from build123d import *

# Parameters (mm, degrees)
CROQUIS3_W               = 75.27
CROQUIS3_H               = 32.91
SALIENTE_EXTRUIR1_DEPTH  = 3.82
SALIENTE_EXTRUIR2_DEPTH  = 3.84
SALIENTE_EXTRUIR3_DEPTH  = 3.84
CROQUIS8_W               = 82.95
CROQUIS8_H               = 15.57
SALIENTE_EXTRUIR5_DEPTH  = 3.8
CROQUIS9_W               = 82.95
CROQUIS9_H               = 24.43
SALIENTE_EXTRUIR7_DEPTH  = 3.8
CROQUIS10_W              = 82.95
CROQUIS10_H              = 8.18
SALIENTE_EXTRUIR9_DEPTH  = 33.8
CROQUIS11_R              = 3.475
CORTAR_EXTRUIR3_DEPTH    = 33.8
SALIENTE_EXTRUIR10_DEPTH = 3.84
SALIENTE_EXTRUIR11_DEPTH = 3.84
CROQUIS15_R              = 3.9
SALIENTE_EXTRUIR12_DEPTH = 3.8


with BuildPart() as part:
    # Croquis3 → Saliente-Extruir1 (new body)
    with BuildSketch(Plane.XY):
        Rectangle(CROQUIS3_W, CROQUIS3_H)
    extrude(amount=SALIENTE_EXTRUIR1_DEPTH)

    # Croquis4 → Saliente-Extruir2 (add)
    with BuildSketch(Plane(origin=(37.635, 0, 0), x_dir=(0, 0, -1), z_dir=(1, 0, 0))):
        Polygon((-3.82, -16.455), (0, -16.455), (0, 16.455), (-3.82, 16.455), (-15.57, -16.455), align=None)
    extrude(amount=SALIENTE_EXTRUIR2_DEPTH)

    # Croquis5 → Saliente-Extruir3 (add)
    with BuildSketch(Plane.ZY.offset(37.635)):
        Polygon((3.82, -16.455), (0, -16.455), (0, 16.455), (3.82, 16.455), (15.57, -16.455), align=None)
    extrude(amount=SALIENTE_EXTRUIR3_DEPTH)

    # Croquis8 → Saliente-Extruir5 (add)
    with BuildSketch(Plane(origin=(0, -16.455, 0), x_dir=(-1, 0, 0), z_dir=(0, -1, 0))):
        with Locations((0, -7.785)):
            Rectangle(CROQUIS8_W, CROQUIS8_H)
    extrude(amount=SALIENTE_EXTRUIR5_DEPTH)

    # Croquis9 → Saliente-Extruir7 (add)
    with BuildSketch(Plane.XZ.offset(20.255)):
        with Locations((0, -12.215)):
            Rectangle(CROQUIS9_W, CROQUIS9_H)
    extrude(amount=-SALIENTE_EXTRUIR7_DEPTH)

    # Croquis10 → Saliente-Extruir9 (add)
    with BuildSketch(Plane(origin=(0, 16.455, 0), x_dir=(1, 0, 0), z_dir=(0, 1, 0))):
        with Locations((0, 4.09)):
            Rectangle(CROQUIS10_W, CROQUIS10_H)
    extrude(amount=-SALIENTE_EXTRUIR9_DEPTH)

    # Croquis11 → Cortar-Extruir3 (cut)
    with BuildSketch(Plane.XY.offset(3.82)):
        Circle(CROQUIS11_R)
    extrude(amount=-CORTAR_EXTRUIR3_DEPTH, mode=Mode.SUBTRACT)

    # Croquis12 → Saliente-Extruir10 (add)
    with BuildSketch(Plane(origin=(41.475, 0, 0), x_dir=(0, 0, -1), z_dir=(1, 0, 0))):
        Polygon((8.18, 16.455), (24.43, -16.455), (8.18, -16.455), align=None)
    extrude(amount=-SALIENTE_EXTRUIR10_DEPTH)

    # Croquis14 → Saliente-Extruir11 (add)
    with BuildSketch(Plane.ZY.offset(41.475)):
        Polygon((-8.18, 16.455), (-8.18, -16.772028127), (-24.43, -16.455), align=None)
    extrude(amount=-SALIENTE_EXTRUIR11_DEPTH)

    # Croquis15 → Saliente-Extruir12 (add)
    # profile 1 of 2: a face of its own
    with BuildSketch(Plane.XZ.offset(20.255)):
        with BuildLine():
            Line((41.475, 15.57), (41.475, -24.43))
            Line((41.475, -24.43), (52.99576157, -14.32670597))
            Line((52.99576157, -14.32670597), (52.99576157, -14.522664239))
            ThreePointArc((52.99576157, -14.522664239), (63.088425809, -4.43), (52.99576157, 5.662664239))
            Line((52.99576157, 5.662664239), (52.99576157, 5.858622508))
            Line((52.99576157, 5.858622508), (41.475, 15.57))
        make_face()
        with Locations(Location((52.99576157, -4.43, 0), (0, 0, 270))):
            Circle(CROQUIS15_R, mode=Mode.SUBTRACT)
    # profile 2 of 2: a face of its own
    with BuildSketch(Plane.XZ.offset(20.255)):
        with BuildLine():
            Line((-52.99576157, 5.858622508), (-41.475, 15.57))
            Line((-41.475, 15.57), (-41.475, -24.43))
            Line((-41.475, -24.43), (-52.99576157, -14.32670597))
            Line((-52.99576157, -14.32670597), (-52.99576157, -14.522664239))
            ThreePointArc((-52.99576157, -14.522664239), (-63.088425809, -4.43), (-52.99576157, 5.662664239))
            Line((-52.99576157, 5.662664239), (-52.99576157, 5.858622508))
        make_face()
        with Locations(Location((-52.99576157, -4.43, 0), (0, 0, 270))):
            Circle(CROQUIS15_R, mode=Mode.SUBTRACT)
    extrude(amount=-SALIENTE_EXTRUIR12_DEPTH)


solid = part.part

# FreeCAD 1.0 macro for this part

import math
import FreeCAD as App
import Part
import Sketcher


def add_polygon(sketch, points):
    """Adds a closed chain of lines whose ends are joined by coincident constraints."""
    first, n = sketch.GeometryCount, len(points)
    for a, b in zip(points, points[1:] + points[:1]):
        sketch.addGeometry(Part.LineSegment(App.Vector(*a, 0), App.Vector(*b, 0)), False)
    for i in range(n):
        sketch.addConstraint(Sketcher.Constraint("Coincident", first + i, 2, first + (i + 1) % n, 1))

doc = App.newDocument("Part")
params = doc.addObject("Spreadsheet::Sheet", "Params")
for row, (alias, value) in enumerate([
    ("sketch1_width", "75.27 mm"),
    ("sketch1_height", "32.91 mm"),
    ("pad1_length", "3.82 mm"),
    ("sketch2_width", "32.91 mm"),
    ("sketch2_height", "3.82 mm"),
    ("sketch2_height2", "15.57 mm"),
    ("pad2_length", "3.84 mm"),
    ("sketch3_width", "32.91 mm"),
    ("sketch3_height", "15.57 mm"),
    ("sketch3_height2", "3.82 mm"),
    ("pad3_length", "3.84 mm"),
    ("sketch4_width", "82.95 mm"),
    ("sketch4_height", "15.57 mm"),
    ("pad4_length", "3.8 mm"),
    ("sketch5_width", "82.95 mm"),
    ("sketch5_height", "24.43 mm"),
    ("pad5_length", "3.8 mm"),
    ("sketch6_width", "82.95 mm"),
    ("sketch6_height", "8.18 mm"),
    ("pad6_length", "33.8 mm"),
    ("sketch7_diameter", "6.95 mm"),
    ("pocket1_length", "33.8 mm"),
    ("sketch8_width", "32.91 mm"),
    ("sketch8_height", "16.25 mm"),
    ("pad7_length", "3.84 mm"),
    ("pad8_length", "3.84 mm"),
    ("sketch10_diameter", "7.8 mm"),
    ("sketch10_height", "40 mm"),
    ("pad9_length", "3.8 mm"),
], start=1):
    params.set(f"A{row}", alias)
    params.set(f"B{row}", "=" + value)
    params.setAlias(f"B{row}", alias)

body = doc.addObject("PartDesign::Body", "Body")

# Sketch on XY plane
sketch1 = body.newObject("Sketcher::SketchObject", "Sketch")
sketch1.AttachmentSupport = (doc.getObject("XY_Plane"), [""])
sketch1.MapMode = "FlatFace"
add_polygon(sketch1, [(-38, 16), (-38, -16), (38, -16), (38, 16)])  # lines 0-3
sketch1.addConstraint([
    Sketcher.Constraint("Vertical", 0),
    Sketcher.Constraint("Horizontal", 1),
    Sketcher.Constraint("Vertical", 2),
    Sketcher.Constraint("Horizontal", 3),
    Sketcher.Constraint("Symmetric", 0, 2, 2, 2, -1, 1),
    Sketcher.Constraint("DistanceX", 1, 1, 1, 2, 75.27),
    Sketcher.Constraint("DistanceY", 0, 2, 0, 1, 32.91),
])
sketch1.setExpression("Constraints[9]", "Params.sketch1_width")
sketch1.setExpression("Constraints[10]", "Params.sketch1_height")
pad1 = body.newObject("PartDesign::Pad", "Pad")
pad1.Profile = sketch1
pad1.setExpression("Length", "Params.pad1_length")

# Sketch on YZ plane
sketch2 = body.newObject("Sketcher::SketchObject", "Sketch001")
sketch2.AttachmentSupport = (doc.getObject("YZ_Plane"), [""])
sketch2.MapMode = "FlatFace"
sketch2.AttachmentOffset = App.Placement(App.Vector(0, 0, 37.635), App.Rotation())
add_polygon(sketch2, [(-16.5, 0), (16.5, 0), (16.5, 3.8), (-16.5, 15.6)])  # lines 0-3
sketch2.addConstraint([
    Sketcher.Constraint("Horizontal", 0),
    Sketcher.Constraint("Vertical", 1),
    Sketcher.Constraint("Vertical", 3),
    Sketcher.Constraint("Symmetric", 0, 2, 3, 2, -1, 1),
    Sketcher.Constraint("DistanceX", 0, 1, 0, 2, 32.91),
    Sketcher.Constraint("DistanceY", 1, 1, 1, 2, 3.82),
    Sketcher.Constraint("DistanceY", 3, 2, 3, 1, 15.57),
])
sketch2.setExpression("Constraints[8]", "Params.sketch2_width")
sketch2.setExpression("Constraints[9]", "Params.sketch2_height")
sketch2.setExpression("Constraints[10]", "Params.sketch2_height2")
pad2 = body.newObject("PartDesign::Pad", "Pad001")
pad2.Profile = sketch2
pad2.setExpression("Length", "Params.pad2_length")

# Sketch on YZ plane
sketch3 = body.newObject("Sketcher::SketchObject", "Sketch002")
sketch3.AttachmentSupport = (doc.getObject("YZ_Plane"), [""])
sketch3.MapMode = "FlatFace"
sketch3.AttachmentOffset = App.Placement(App.Vector(0, 0, -37.635), App.Rotation())
add_polygon(sketch3, [(-16.5, 0), (-16.5, 15.6), (16.5, 3.8), (16.5, 0)])  # lines 0-3
sketch3.addConstraint([
    Sketcher.Constraint("Vertical", 0),
    Sketcher.Constraint("Vertical", 2),
    Sketcher.Constraint("Horizontal", 3),
    Sketcher.Constraint("Symmetric", 2, 2, 3, 2, -1, 1),
    Sketcher.Constraint("DistanceX", 3, 2, 3, 1, 32.91),
    Sketcher.Constraint("DistanceY", 0, 1, 0, 2, 15.57),
    Sketcher.Constraint("DistanceY", 2, 2, 2, 1, 3.82),
])
sketch3.setExpression("Constraints[8]", "Params.sketch3_width")
sketch3.setExpression("Constraints[9]", "Params.sketch3_height")
sketch3.setExpression("Constraints[10]", "Params.sketch3_height2")
pad3 = body.newObject("PartDesign::Pad", "Pad002")
pad3.Profile = sketch3
pad3.setExpression("Length", "Params.pad3_length")
pad3.Reversed = True

# Sketch on XZ plane
sketch4 = body.newObject("Sketcher::SketchObject", "Sketch003")
sketch4.AttachmentSupport = (doc.getObject("XZ_Plane"), [""])
sketch4.MapMode = "FlatFace"
sketch4.AttachmentOffset = App.Placement(App.Vector(0, 0, 16.455), App.Rotation())
add_polygon(sketch4, [(41, 0), (41, 16), (-41, 16), (-41, 0)])  # lines 0-3
sketch4.addConstraint([
    Sketcher.Constraint("Vertical", 0),
    Sketcher.Constraint("Horizontal", 1),
    Sketcher.Constraint("Vertical", 2),
    Sketcher.Constraint("Horizontal", 3),
    Sketcher.Constraint("Symmetric", 2, 2, 3, 2, -1, 1),
    Sketcher.Constraint("DistanceX", 1, 2, 1, 1, 82.95),
    Sketcher.Constraint("DistanceY", 0, 1, 0, 2, 15.57),
])
sketch4.setExpression("Constraints[9]", "Params.sketch4_width")
sketch4.setExpression("Constraints[10]", "Params.sketch4_height")
pad4 = body.newObject("PartDesign::Pad", "Pad003")
pad4.Profile = sketch4
pad4.setExpression("Length", "Params.pad4_length")

# Sketch on XZ plane
sketch5 = body.newObject("Sketcher::SketchObject", "Sketch004")
sketch5.AttachmentSupport = (doc.getObject("XZ_Plane"), [""])
sketch5.MapMode = "FlatFace"
sketch5.AttachmentOffset = App.Placement(App.Vector(0, 0, 20.255), App.Rotation())
add_polygon(sketch5, [(-41, 0), (-41, -24), (41, -24), (41, 0)])  # lines 0-3
sketch5.addConstraint([
    Sketcher.Constraint("Vertical", 0),
    Sketcher.Constraint("Horizontal", 1),
    Sketcher.Constraint("Vertical", 2),
    Sketcher.Constraint("Horizontal", 3),
    Sketcher.Constraint("Symmetric", 2, 2, 3, 2, -1, 1),
    Sketcher.Constraint("DistanceX", 1, 1, 1, 2, 82.95),
    Sketcher.Constraint("DistanceY", 0, 2, 0, 1, 24.43),
])
sketch5.setExpression("Constraints[9]", "Params.sketch5_width")
sketch5.setExpression("Constraints[10]", "Params.sketch5_height")
pad5 = body.newObject("PartDesign::Pad", "Pad004")
pad5.Profile = sketch5
pad5.setExpression("Length", "Params.pad5_length")
pad5.Reversed = True

# Sketch on XZ plane
sketch6 = body.newObject("Sketcher::SketchObject", "Sketch005")
sketch6.AttachmentSupport = (doc.getObject("XZ_Plane"), [""])
sketch6.MapMode = "FlatFace"
sketch6.AttachmentOffset = App.Placement(App.Vector(0, 0, -16.455), App.Rotation())
add_polygon(sketch6, [(-41, -8), (-41, 0), (41, 0), (41, -8)])  # lines 0-3
sketch6.addConstraint([
    Sketcher.Constraint("Vertical", 0),
    Sketcher.Constraint("Horizontal", 1),
    Sketcher.Constraint("Vertical", 2),
    Sketcher.Constraint("Horizontal", 3),
    Sketcher.Constraint("Symmetric", 0, 2, 1, 2, -1, 1),
    Sketcher.Constraint("DistanceX", 1, 1, 1, 2, 82.95),
    Sketcher.Constraint("DistanceY", 0, 1, 0, 2, 8.18),
])
sketch6.setExpression("Constraints[9]", "Params.sketch6_width")
sketch6.setExpression("Constraints[10]", "Params.sketch6_height")
pad6 = body.newObject("PartDesign::Pad", "Pad005")
pad6.Profile = sketch6
pad6.setExpression("Length", "Params.pad6_length")

# Sketch on XY plane
sketch7 = body.newObject("Sketcher::SketchObject", "Sketch006")
sketch7.AttachmentSupport = (doc.getObject("XY_Plane"), [""])
sketch7.MapMode = "FlatFace"
sketch7.AttachmentOffset = App.Placement(App.Vector(0, 0, 3.82), App.Rotation())
sketch7.addGeometry(Part.Circle(App.Vector(0, 0, 0), App.Vector(0, 0, 1), 3.5), False)
sketch7.addConstraint([
    Sketcher.Constraint("Coincident", 0, 3, -1, 1),
    Sketcher.Constraint("Diameter", 0, 6.95),
])
sketch7.setExpression("Constraints[1]", "Params.sketch7_diameter")
pocket1 = body.newObject("PartDesign::Pocket", "Pocket")
pocket1.Profile = sketch7
pocket1.setExpression("Length", "Params.pocket1_length")

# Sketch on YZ plane
sketch8 = body.newObject("Sketcher::SketchObject", "Sketch007")
sketch8.AttachmentSupport = (doc.getObject("YZ_Plane"), [""])
sketch8.MapMode = "FlatFace"
sketch8.AttachmentOffset = App.Placement(App.Vector(0, 0, 41.475), App.Rotation())
add_polygon(sketch8, [(-16, -24), (16, -8), (-16, -8)])  # lines 0-2
sketch8.addConstraint([
    Sketcher.Constraint("Horizontal", 1),
    Sketcher.Constraint("Vertical", 2),
    Sketcher.Constraint("DistanceX", 1, 2, 1, 1, 32.91),
    Sketcher.Constraint("DistanceY", 2, 2, 2, 1, 16.25),
    Sketcher.Constraint("DistanceY", 0, 2, -1, 1, 8.18),
    Sketcher.Constraint("DistanceX", -1, 1, 0, 2, 16.455),
])
sketch8.setExpression("Constraints[5]", "Params.sketch8_width")
sketch8.setExpression("Constraints[6]", "Params.sketch8_height")
pad7 = body.newObject("PartDesign::Pad", "Pad006")
pad7.Profile = sketch8
pad7.setExpression("Length", "Params.pad7_length")
pad7.Reversed = True

# Sketch on YZ plane
sketch9 = body.newObject("Sketcher::SketchObject", "Sketch008")
sketch9.AttachmentSupport = (doc.getObject("YZ_Plane"), [""])
sketch9.MapMode = "FlatFace"
sketch9.AttachmentOffset = App.Placement(App.Vector(0, 0, -41.475), App.Rotation())
add_polygon(sketch9, [(-17, -8), (16, -8), (-16, -24)])  # lines 0-2
sketch9.addConstraint([
    Sketcher.Constraint("Horizontal", 0),
    Sketcher.Constraint("DistanceY", 0, 2, -1, 1, 8.18),
    Sketcher.Constraint("DistanceY", 1, 2, -1, 1, 24.43),
    Sketcher.Constraint("DistanceX", 1, 2, 0, 2, 32.91),
    Sketcher.Constraint("DistanceX", -1, 1, 0, 2, 16.455),
    Sketcher.Constraint("DistanceX", 0, 1, 0, 2, 33.227028),
])
pad8 = body.newObject("PartDesign::Pad", "Pad007")
pad8.Profile = sketch9
pad8.setExpression("Length", "Params.pad8_length")

# Sketch on XZ plane
sketch10 = body.newObject("Sketcher::SketchObject", "Sketch009")
sketch10.AttachmentSupport = (doc.getObject("XZ_Plane"), [""])
sketch10.MapMode = "FlatFace"
sketch10.AttachmentOffset = App.Placement(App.Vector(0, 0, 20.255), App.Rotation())
sketch10.addGeometry([
    Part.LineSegment(App.Vector(41.48, 15.57, 0), App.Vector(41.48, -24.43, 0)),  # 0
    Part.LineSegment(App.Vector(41.48, -24.43, 0), App.Vector(53, -14.33, 0)),  # 1
    Part.LineSegment(App.Vector(53, -14.33, 0), App.Vector(53, -14.52, 0)),  # 2
    Part.ArcOfCircle(Part.Circle(App.Vector(53, -4.43, 0), App.Vector(0, 0, 1), 10.09), math.radians(-90), math.radians(90)),  # 3
    Part.LineSegment(App.Vector(53, 5.66, 0), App.Vector(53, 5.86, 0)),  # 4
    Part.LineSegment(App.Vector(53, 5.86, 0), App.Vector(41.48, 15.57, 0)),  # 5
    Part.Circle(App.Vector(53, -4.43, 0), App.Vector(0, 0, 1), 3.9),  # 6
    Part.LineSegment(App.Vector(-41.48, 15.57, 0), App.Vector(-53, 5.86, 0)),  # 7
    Part.LineSegment(App.Vector(-53, 5.86, 0), App.Vector(-53, 5.66, 0)),  # 8
    Part.ArcOfCircle(Part.Circle(App.Vector(-53, -4.43, 0), App.Vector(0, 0, 1), 10.09), math.radians(90), math.radians(270)),  # 9
    Part.LineSegment(App.Vector(-53, -14.52, 0), App.Vector(-53, -14.33, 0)),  # 10
    Part.LineSegment(App.Vector(-53, -14.33, 0), App.Vector(-41.48, -24.43, 0)),  # 11
    Part.LineSegment(App.Vector(-41.48, -24.43, 0), App.Vector(-41.48, 15.57, 0)),  # 12
    Part.Circle(App.Vector(-53, -4.43, 0), App.Vector(0, 0, 1), 3.9),  # 13
], False)
sketch10.addConstraint([
    Sketcher.Constraint("Coincident", 0, 2, 1, 1),
    Sketcher.Constraint("Coincident", 1, 2, 2, 1),
    Sketcher.Constraint("Coincident", 2, 2, 3, 1),
    Sketcher.Constraint("Coincident", 3, 2, 4, 1),
    Sketcher.Constraint("Coincident", 4, 2, 5, 1),
    Sketcher.Constraint("Coincident", 5, 2, 0, 1),
    Sketcher.Constraint("Coincident", 7, 2, 8, 1),
    Sketcher.Constraint("Coincident", 8, 2, 9, 1),
    Sketcher.Constraint("Coincident", 9, 2, 10, 1),
    Sketcher.Constraint("Coincident", 10, 2, 11, 1),
    Sketcher.Constraint("Coincident", 11, 2, 12, 1),
    Sketcher.Constraint("Coincident", 12, 2, 7, 1),
    Sketcher.Constraint("Vertical", 0),
    Sketcher.Constraint("Vertical", 2),
    Sketcher.Constraint("Vertical", 4),
    Sketcher.Constraint("Vertical", 8),
    Sketcher.Constraint("Vertical", 10),
    Sketcher.Constraint("Vertical", 12),
    Sketcher.Constraint("Coincident", 6, 3, 3, 3),
    Sketcher.Constraint("Coincident", 13, 3, 9, 3),
    Sketcher.Constraint("Equal", 3, 9),
    Sketcher.Constraint("Equal", 6, 13),
    Sketcher.Constraint("Symmetric", 3, 3, 9, 3, -2),
    Sketcher.Constraint("Symmetric", 4, 2, 7, 2, -2),
    Sketcher.Constraint("Symmetric", 1, 2, 10, 2, -2),
    Sketcher.Constraint("Symmetric", 0, 2, 11, 2, -2),
    Sketcher.Constraint("Horizontal", 5, 2, 12, 2),
    Sketcher.Constraint("Vertical", 6, 3, 1, 2),
    Sketcher.Constraint("Vertical", 2, 2, 3, 2),
    Sketcher.Constraint("Equal", 2, 4),
    Sketcher.Constraint("Diameter", 6, 7.8),
    Sketcher.Constraint("DistanceY", 0, 2, 0, 1, 40.0),
    Sketcher.Constraint("DistanceY", 0, 2, 3, 3, 20.0),
    Sketcher.Constraint("DistanceY", 3, 3, -1, 1, 4.43),
    Sketcher.Constraint("DistanceX", -1, 1, 0, 2, 41.475),
    Sketcher.Constraint("Radius", 3, 10.092664),
    Sketcher.Constraint("DistanceY", 2, 2, 2, 1, 0.195958),
    Sketcher.Constraint("Distance", 1, 15.323332),
])
sketch10.setExpression("Constraints[30]", "Params.sketch10_diameter")
sketch10.setExpression("Constraints[31]", "Params.sketch10_height")
pad9 = body.newObject("PartDesign::Pad", "Pad008")
pad9.Profile = sketch10
pad9.setExpression("Length", "Params.pad9_length")
pad9.Reversed = True

doc.recompute()
